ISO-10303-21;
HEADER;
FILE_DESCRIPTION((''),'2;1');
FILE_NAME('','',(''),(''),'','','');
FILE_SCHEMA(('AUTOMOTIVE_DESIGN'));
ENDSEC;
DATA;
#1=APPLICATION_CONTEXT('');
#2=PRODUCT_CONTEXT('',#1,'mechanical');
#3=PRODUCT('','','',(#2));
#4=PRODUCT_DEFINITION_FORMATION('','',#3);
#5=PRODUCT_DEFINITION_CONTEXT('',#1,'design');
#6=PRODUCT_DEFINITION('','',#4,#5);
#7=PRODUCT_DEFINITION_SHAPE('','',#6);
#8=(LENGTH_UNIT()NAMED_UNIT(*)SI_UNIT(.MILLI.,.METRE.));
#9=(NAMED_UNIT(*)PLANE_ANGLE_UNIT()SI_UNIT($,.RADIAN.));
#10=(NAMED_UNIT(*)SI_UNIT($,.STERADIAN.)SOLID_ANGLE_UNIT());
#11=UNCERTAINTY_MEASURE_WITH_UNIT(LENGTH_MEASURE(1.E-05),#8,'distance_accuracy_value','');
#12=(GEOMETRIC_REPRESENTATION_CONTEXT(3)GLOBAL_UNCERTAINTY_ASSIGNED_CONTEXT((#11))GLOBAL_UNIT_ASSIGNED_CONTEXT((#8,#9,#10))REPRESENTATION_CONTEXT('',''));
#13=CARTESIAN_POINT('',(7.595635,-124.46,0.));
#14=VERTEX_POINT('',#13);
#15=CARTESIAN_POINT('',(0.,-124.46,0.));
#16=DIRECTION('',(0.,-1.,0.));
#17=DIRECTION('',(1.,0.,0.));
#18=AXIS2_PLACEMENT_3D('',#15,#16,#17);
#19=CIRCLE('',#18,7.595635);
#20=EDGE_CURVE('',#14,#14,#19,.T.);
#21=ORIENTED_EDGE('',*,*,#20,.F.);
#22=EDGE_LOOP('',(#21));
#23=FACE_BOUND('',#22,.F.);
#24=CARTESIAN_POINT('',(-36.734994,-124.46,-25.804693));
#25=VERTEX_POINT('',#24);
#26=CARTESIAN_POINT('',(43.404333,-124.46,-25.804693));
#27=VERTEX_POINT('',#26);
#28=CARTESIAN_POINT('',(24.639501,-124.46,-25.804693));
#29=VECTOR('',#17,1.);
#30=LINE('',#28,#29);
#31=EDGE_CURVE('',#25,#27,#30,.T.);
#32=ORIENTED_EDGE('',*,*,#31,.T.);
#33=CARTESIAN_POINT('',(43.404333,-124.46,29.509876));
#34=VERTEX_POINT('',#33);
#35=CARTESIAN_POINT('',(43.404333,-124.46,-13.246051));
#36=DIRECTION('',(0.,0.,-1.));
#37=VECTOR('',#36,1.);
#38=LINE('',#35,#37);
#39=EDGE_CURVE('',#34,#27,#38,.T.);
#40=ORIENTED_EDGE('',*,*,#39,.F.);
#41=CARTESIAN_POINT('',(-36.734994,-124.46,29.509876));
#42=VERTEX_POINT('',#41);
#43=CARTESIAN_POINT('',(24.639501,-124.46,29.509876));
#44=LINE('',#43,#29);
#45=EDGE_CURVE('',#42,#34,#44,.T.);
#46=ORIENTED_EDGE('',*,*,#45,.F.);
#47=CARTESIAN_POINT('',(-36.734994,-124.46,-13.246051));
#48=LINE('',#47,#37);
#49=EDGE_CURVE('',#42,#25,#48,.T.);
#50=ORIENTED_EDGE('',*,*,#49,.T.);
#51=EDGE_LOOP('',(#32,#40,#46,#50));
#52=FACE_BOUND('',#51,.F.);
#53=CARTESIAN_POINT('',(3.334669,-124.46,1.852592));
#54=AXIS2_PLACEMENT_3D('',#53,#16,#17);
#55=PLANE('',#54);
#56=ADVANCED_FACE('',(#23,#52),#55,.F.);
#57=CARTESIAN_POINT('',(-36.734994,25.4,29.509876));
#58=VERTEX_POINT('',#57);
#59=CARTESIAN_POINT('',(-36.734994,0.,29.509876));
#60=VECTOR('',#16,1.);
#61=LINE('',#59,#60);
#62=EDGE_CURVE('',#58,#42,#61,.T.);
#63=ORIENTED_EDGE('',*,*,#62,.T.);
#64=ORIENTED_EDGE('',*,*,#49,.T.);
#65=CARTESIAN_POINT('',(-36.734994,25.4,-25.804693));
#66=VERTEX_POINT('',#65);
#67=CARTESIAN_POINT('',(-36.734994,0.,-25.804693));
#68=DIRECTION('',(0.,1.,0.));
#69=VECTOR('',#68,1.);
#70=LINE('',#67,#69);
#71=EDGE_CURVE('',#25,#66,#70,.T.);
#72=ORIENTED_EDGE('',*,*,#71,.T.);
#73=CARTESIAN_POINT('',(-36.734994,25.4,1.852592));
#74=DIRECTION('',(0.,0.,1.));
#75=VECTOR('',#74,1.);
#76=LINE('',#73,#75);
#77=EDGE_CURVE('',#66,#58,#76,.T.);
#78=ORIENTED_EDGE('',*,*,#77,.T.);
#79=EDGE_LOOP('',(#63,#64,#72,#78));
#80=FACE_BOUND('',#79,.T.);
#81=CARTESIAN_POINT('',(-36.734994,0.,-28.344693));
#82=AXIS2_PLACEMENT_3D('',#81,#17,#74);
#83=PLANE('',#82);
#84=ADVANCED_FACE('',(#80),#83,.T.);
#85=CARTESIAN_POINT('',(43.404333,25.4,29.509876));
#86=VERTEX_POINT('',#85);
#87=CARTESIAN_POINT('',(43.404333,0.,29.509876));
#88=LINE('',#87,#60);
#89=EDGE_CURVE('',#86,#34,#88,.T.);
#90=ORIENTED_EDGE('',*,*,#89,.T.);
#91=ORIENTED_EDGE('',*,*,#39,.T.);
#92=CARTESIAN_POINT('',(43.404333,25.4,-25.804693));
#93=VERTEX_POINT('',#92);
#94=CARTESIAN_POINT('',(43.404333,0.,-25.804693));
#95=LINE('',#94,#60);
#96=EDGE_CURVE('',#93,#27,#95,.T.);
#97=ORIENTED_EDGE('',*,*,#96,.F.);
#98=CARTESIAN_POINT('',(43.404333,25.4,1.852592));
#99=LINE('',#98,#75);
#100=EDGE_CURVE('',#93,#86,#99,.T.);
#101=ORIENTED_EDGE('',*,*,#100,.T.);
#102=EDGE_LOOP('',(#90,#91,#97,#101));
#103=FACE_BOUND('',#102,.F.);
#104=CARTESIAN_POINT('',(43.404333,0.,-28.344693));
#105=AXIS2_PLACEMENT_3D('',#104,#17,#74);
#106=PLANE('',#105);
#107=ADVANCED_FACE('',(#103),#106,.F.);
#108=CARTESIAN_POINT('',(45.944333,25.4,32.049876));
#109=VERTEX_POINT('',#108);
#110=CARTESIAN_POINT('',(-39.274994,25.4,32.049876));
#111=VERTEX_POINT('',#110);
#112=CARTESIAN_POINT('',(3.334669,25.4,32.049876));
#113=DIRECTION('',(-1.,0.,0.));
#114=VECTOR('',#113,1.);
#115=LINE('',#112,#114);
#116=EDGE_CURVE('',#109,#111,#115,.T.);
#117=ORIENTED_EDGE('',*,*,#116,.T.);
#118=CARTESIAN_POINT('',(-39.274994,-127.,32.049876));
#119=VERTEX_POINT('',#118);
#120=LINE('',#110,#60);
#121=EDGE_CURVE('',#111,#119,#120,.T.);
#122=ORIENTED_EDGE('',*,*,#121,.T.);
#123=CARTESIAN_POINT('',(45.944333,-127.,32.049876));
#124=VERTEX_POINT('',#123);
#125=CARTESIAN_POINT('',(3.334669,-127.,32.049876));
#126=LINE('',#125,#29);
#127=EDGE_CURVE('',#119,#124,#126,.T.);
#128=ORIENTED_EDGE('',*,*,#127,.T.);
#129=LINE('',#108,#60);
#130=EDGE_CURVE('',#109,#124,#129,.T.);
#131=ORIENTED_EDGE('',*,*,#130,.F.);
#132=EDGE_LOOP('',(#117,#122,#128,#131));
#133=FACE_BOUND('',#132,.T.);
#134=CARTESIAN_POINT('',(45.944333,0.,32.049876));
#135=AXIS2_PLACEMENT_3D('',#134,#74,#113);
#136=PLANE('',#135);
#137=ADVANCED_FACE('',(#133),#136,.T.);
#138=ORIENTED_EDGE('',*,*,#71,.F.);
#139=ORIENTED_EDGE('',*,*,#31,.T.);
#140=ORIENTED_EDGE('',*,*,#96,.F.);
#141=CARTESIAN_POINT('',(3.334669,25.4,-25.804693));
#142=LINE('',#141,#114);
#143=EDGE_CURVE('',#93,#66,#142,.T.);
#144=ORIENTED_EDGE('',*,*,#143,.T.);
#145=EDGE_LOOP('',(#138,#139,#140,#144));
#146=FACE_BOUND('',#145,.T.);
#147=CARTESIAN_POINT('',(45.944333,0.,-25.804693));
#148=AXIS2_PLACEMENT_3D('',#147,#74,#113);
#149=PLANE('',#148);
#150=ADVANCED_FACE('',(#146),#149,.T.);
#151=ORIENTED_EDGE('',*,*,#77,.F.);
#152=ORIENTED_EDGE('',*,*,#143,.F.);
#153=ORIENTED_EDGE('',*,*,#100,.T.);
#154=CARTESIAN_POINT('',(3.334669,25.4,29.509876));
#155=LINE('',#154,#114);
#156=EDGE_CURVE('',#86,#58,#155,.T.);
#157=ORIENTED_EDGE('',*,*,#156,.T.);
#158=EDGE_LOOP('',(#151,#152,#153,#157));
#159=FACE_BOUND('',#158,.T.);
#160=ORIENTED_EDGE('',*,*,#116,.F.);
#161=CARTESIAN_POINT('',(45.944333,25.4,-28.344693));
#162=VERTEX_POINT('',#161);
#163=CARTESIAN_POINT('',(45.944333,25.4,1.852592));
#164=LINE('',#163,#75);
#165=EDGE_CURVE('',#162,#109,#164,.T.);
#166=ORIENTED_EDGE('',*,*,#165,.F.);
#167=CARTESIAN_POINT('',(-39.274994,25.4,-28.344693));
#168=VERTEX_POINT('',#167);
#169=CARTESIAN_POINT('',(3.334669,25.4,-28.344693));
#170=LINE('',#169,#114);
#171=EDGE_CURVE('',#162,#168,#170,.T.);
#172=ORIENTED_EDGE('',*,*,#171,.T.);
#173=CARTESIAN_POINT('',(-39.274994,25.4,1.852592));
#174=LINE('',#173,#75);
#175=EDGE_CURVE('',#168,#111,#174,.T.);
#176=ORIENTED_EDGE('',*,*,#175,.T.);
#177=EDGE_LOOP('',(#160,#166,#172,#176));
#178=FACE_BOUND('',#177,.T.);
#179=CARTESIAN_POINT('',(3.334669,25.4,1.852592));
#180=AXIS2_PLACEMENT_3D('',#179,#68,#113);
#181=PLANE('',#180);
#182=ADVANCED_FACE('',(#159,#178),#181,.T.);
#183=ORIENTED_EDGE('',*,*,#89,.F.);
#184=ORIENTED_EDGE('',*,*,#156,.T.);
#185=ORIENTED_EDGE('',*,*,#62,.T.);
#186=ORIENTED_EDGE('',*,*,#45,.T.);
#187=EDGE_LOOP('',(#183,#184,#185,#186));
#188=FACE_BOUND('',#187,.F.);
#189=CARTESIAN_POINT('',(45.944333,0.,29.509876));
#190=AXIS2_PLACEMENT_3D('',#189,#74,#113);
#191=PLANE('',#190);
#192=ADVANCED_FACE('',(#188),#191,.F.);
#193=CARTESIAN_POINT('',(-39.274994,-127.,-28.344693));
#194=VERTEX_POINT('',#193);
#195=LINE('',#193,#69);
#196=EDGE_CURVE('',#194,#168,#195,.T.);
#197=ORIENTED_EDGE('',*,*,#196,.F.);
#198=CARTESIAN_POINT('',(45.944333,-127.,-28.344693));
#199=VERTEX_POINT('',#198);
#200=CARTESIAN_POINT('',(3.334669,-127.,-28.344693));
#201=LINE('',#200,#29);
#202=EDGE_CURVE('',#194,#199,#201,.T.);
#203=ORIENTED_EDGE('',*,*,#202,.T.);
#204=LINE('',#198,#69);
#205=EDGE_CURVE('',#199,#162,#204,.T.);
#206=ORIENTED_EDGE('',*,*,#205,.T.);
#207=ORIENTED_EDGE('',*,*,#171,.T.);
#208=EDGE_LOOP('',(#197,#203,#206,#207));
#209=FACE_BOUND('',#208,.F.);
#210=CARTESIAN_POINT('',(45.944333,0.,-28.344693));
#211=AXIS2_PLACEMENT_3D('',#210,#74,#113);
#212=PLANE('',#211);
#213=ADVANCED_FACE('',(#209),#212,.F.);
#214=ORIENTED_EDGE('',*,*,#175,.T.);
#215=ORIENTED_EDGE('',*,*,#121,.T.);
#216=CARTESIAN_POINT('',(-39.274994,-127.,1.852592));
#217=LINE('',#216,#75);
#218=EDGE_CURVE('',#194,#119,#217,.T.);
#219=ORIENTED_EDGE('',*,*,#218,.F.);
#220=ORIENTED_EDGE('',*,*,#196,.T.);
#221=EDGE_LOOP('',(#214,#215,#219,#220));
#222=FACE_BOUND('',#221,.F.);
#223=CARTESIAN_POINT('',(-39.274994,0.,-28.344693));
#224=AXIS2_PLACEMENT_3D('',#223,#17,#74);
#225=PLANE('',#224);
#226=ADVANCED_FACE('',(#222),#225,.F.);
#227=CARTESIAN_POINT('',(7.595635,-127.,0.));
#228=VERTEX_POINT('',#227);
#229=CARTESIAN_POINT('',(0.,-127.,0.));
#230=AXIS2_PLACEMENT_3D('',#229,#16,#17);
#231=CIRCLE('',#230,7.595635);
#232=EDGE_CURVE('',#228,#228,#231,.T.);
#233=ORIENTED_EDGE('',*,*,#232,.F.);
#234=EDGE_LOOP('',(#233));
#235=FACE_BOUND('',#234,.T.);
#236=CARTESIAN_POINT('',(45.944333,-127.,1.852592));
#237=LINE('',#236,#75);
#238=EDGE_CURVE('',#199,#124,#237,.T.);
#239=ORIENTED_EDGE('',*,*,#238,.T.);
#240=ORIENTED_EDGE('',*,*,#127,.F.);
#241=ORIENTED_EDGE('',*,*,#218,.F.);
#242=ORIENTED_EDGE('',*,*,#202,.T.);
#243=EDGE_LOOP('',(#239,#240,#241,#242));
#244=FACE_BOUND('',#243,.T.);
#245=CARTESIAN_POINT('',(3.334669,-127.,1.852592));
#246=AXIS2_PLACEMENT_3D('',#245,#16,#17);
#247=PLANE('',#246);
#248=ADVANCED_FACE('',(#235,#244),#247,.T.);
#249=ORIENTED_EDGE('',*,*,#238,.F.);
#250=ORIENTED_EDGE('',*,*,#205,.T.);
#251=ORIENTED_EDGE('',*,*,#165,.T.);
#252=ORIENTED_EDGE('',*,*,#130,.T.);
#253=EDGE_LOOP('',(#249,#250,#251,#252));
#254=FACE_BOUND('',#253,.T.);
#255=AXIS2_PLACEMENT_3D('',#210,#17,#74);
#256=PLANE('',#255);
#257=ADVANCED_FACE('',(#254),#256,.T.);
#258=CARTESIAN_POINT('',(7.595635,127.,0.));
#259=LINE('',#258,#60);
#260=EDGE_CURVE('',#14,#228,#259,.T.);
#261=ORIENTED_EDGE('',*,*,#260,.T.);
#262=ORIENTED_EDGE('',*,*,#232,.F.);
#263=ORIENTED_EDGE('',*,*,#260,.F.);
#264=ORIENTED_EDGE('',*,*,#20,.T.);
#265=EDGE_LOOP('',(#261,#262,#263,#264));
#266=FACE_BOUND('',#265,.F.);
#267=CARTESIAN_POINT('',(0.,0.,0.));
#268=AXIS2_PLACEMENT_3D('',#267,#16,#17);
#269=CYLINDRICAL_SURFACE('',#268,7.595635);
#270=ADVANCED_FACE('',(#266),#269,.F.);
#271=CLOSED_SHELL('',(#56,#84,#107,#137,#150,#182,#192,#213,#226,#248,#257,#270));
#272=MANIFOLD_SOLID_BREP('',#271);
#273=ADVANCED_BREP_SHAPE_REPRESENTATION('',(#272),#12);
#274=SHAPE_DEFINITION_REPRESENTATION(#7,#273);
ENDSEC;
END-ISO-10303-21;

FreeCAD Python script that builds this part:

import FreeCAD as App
import Part
import Sketcher

V = App.Vector
Q = App.Units.Quantity


def faces_at(feature, points):
    """Names of the faces that lie closest to the given points."""
    faces = feature.Shape.Faces
    near = lambda p: min(range(len(faces)), key=lambda i: faces[i].distToShape(Part.Vertex(*p))[0])
    return sorted({f"Face{near(p) + 1}" for p in points})

doc = App.newDocument("Part")
body = doc.addObject("PartDesign::Body", "Body")

sketch1 = body.newObject("Sketcher::SketchObject", "Sketch")
sketch1.AttachmentSupport = (doc.getObject("XZ_Plane"), [""])
sketch1.MapMode = "FlatFace"
sketch1.addGeometry(Part.LineSegment(V(-39.274994, 32.049876, 0), V(-39.274994, -28.344693, 0)), False)
sketch1.addGeometry(Part.LineSegment(V(-39.274994, -28.344693, 0), V(45.944333, -28.344693, 0)), False)
sketch1.addGeometry(Part.LineSegment(V(45.944333, -28.344693, 0), V(45.944333, 32.049876, 0)), False)
sketch1.addGeometry(Part.LineSegment(V(45.944333, 32.049876, 0), V(-39.274994, 32.049876, 0)), False)
sketch1.addConstraint(Sketcher.Constraint("Coincident", 0, 2, 1, 1))
sketch1.addConstraint(Sketcher.Constraint("Coincident", 1, 2, 2, 1))
sketch1.addConstraint(Sketcher.Constraint("Coincident", 2, 2, 3, 1))
sketch1.addConstraint(Sketcher.Constraint("Coincident", 3, 2, 0, 1))
sketch1.addConstraint(Sketcher.Constraint("Vertical", 0))
sketch1.addConstraint(Sketcher.Constraint("Horizontal", 1))
sketch1.addConstraint(Sketcher.Constraint("Vertical", 2))
sketch1.addConstraint(Sketcher.Constraint("Horizontal", 3))
sketch1.addConstraint(Sketcher.Constraint("DistanceY", 0, 2, 0, 1, 60.394568))
sketch1.addConstraint(Sketcher.Constraint("DistanceX", 1, 1, 1, 2, 85.219327))
sketch1.addConstraint(Sketcher.Constraint("DistanceX", 0, 2, -1, 1, 39.274994))
sketch1.addConstraint(Sketcher.Constraint("DistanceY", 0, 2, -1, 1, 28.344693))
pad1 = body.newObject("PartDesign::Pad", "Pad")
pad1.Profile = sketch1
pad1.Length = Q("5 in")

sketch2 = body.newObject("Sketcher::SketchObject", "Sketch001")
sketch2.AttachmentSupport = (doc.getObject("XZ_Plane"), [""])
sketch2.MapMode = "FlatFace"
sketch2.addGeometry(Part.LineSegment(V(45.944333, 32.049876, 0), V(45.944333, -28.344693, 0)), False)
sketch2.addGeometry(Part.LineSegment(V(45.944333, -28.344693, 0), V(-39.274994, -28.344693, 0)), False)
sketch2.addGeometry(Part.LineSegment(V(-39.274994, -28.344693, 0), V(-39.274994, 32.049876, 0)), False)
sketch2.addGeometry(Part.LineSegment(V(-39.274994, 32.049876, 0), V(45.944333, 32.049876, 0)), False)
sketch2.addConstraint(Sketcher.Constraint("Coincident", 0, 2, 1, 1))
sketch2.addConstraint(Sketcher.Constraint("Coincident", 1, 2, 2, 1))
sketch2.addConstraint(Sketcher.Constraint("Coincident", 2, 2, 3, 1))
sketch2.addConstraint(Sketcher.Constraint("Coincident", 3, 2, 0, 1))
sketch2.addConstraint(Sketcher.Constraint("Vertical", 0))
sketch2.addConstraint(Sketcher.Constraint("Horizontal", 1))
sketch2.addConstraint(Sketcher.Constraint("Vertical", 2))
sketch2.addConstraint(Sketcher.Constraint("Horizontal", 3))
sketch2.addConstraint(Sketcher.Constraint("DistanceY", 0, 2, 0, 1, 60.394568))
sketch2.addConstraint(Sketcher.Constraint("DistanceX", 1, 2, 1, 1, 85.219327))
sketch2.addConstraint(Sketcher.Constraint("DistanceX", -1, 1, 0, 2, 45.944333))
sketch2.addConstraint(Sketcher.Constraint("DistanceY", 0, 2, -1, 1, 28.344693))
pad2 = body.newObject("PartDesign::Pad", "Pad001")
pad2.Profile = sketch2
pad2.Length = Q("1 in")
pad2.Reversed = True
doc.recompute()

thickness = body.newObject("PartDesign::Thickness", "Thickness")
thickness.Base = (pad2, faces_at(pad2, [(3.335, 25.4, 1.853)]))
thickness.Value = Q("0.1 in")
thickness.Reversed = True
thickness.Join = "Arc"

sketch3 = body.newObject("Sketcher::SketchObject", "Sketch002")
sketch3.AttachmentSupport = (doc.getObject("XZ_Plane"), [""])
sketch3.MapMode = "FlatFace"
sketch3.addGeometry(Part.Circle(V(0, 0, 0), V(0, 0, 1), 7.595635), False)
sketch3.addConstraint(Sketcher.Constraint("Coincident", 0, 3, -1, 1))
sketch3.addConstraint(Sketcher.Constraint("Diameter", 0, 15.19127))
pocket1 = body.newObject("PartDesign::Pocket", "Pocket")
pocket1.Profile = sketch3
pocket1.Length = Q("10 in")
pocket1.Midplane = True

doc.recompute()
